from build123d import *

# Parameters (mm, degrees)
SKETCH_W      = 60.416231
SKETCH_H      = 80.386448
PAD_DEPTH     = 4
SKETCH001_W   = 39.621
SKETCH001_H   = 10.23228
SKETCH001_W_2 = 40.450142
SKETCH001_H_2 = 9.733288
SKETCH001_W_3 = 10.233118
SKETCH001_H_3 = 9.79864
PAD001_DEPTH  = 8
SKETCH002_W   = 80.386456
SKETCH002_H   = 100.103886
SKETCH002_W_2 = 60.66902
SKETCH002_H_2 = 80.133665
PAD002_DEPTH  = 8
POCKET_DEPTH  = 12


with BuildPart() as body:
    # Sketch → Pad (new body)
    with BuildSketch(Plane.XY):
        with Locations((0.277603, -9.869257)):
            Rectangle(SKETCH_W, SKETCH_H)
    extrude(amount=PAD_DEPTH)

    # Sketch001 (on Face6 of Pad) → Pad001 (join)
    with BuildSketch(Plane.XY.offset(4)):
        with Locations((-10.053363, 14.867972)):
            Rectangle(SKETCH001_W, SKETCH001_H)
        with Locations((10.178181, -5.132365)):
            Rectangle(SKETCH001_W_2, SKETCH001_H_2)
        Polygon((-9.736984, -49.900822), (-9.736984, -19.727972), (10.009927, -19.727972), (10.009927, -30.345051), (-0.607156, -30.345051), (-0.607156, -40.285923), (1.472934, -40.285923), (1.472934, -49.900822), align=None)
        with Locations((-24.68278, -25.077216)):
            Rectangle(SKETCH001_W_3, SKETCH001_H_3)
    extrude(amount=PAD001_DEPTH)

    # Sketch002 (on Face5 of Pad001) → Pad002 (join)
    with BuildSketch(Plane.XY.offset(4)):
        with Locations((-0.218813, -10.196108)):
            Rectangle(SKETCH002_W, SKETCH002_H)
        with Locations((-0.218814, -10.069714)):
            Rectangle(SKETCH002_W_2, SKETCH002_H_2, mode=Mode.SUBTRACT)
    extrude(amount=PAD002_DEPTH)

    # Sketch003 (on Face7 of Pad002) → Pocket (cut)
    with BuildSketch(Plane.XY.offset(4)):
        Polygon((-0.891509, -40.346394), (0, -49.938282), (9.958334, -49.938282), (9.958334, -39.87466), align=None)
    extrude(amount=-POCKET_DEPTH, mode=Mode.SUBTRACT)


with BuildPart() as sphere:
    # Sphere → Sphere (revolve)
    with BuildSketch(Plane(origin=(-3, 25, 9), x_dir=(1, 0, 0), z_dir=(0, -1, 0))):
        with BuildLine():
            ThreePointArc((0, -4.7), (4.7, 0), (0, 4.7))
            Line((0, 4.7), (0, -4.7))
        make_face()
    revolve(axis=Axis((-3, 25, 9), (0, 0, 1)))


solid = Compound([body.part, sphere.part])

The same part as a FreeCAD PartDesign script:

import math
import FreeCAD as App
import Part
import Sketcher

V = App.Vector

doc = App.newDocument("Part")
body = doc.addObject("PartDesign::Body", "Body")

sketch1 = doc.addObject("Sketcher::SketchObject", "Sketch")
body.addObject(sketch1)
sketch1.AttachmentSupport = (doc.XY_Plane, [""])
sketch1.MapMode = "FlatFace"
sketch1.addGeometry([
    Part.LineSegment(V(-30, 30, 0), V(-30, -50, 0)),
    Part.LineSegment(V(-30, -50, 0), V(30, -50, 0)),
    Part.LineSegment(V(30, -50, 0), V(30, 30, 0)),
    Part.LineSegment(V(30, 30, 0), V(-30, 30, 0)),
], False)
sketch1.addConstraint([
    Sketcher.Constraint("Coincident", 0, 2, 1, 1),
    Sketcher.Constraint("Coincident", 1, 2, 2, 1),
    Sketcher.Constraint("Coincident", 2, 2, 3, 1),
    Sketcher.Constraint("Coincident", 3, 2, 0, 1),
    Sketcher.Constraint("Vertical", 0),
    Sketcher.Constraint("Horizontal", 1),
    Sketcher.Constraint("Vertical", 2),
    Sketcher.Constraint("Horizontal", 3),
    Sketcher.Constraint("DistanceX", 1, 1, 1, 2, 60.416231),
    Sketcher.Constraint("DistanceY", 0, 2, 0, 1, 80.386448),
    Sketcher.Constraint("DistanceY", 0, 2, -1, 1, 50.062481),
    Sketcher.Constraint("DistanceX", -1, 1, 1, 2, 30.485719),
])
pad1 = doc.addObject("PartDesign::Pad", "Pad")
body.addObject(pad1)
pad1.Profile = sketch1
pad1.Length = 4

sketch2 = doc.addObject("Sketcher::SketchObject", "Sketch001")
body.addObject(sketch2)
sketch2.AttachmentSupport = (doc.XY_Plane, [""])
sketch2.MapMode = "FlatFace"
sketch2.AttachmentOffset = App.Placement(V(0, 0, 4), App.Rotation())
sketch2.addGeometry([
    Part.LineSegment(V(-29.9, 20, 0), V(-29.9, 9.8, 0)),
    Part.LineSegment(V(-29.9, 9.8, 0), V(9.8, 9.8, 0)),
    Part.LineSegment(V(9.8, 9.8, 0), V(9.8, 20, 0)),
    Part.LineSegment(V(9.8, 20, 0), V(-29.9, 20, 0)),
    Part.LineSegment(V(-10, -0.3, 0), V(-10, -10, 0)),
    Part.LineSegment(V(-10, -10, 0), V(30.4, -10, 0)),
    Part.LineSegment(V(30.4, -10, 0), V(30.4, -0.3, 0)),
    Part.LineSegment(V(30.4, -0.3, 0), V(-10, -0.3, 0)),
    Part.LineSegment(V(-9.7, -19.7, 0), V(-9.7, -49.9, 0)),
    Part.LineSegment(V(-9.7, -49.9, 0), V(1.5, -49.9, 0)),
    Part.LineSegment(V(1.5, -49.9, 0), V(1.5, -40.3, 0)),
    Part.LineSegment(V(1.5, -40.3, 0), V(-0.6, -40.3, 0)),
    Part.LineSegment(V(-0.6, -40.3, 0), V(-0.6, -30.3, 0)),
    Part.LineSegment(V(-0.6, -30.3, 0), V(10, -30.3, 0)),
    Part.LineSegment(V(10, -30.3, 0), V(10, -19.7, 0)),
    Part.LineSegment(V(10, -19.7, 0), V(-9.7, -19.7, 0)),
    Part.LineSegment(V(-29.8, -20.2, 0), V(-29.8, -30, 0)),
    Part.LineSegment(V(-29.8, -30, 0), V(-19.6, -30, 0)),
    Part.LineSegment(V(-19.6, -30, 0), V(-19.6, -20.2, 0)),
    Part.LineSegment(V(-19.6, -20.2, 0), V(-29.8, -20.2, 0)),
], False)
sketch2.addConstraint([
    Sketcher.Constraint("Coincident", 0, 2, 1, 1),
    Sketcher.Constraint("Coincident", 1, 2, 2, 1),
    Sketcher.Constraint("Coincident", 2, 2, 3, 1),
    Sketcher.Constraint("Coincident", 3, 2, 0, 1),
    Sketcher.Constraint("Coincident", 4, 2, 5, 1),
    Sketcher.Constraint("Coincident", 5, 2, 6, 1),
    Sketcher.Constraint("Coincident", 6, 2, 7, 1),
    Sketcher.Constraint("Coincident", 7, 2, 4, 1),
    Sketcher.Constraint("Coincident", 8, 2, 9, 1),
    Sketcher.Constraint("Coincident", 9, 2, 10, 1),
    Sketcher.Constraint("Coincident", 10, 2, 11, 1),
    Sketcher.Constraint("Coincident", 11, 2, 12, 1),
    Sketcher.Constraint("Coincident", 12, 2, 13, 1),
    Sketcher.Constraint("Coincident", 13, 2, 14, 1),
    Sketcher.Constraint("Coincident", 14, 2, 15, 1),
    Sketcher.Constraint("Coincident", 15, 2, 8, 1),
    Sketcher.Constraint("Coincident", 16, 2, 17, 1),
    Sketcher.Constraint("Coincident", 17, 2, 18, 1),
    Sketcher.Constraint("Coincident", 18, 2, 19, 1),
    Sketcher.Constraint("Coincident", 19, 2, 16, 1),
    Sketcher.Constraint("Vertical", 0),
    Sketcher.Constraint("Horizontal", 1),
    Sketcher.Constraint("Vertical", 2),
    Sketcher.Constraint("Horizontal", 3),
    Sketcher.Constraint("Vertical", 4),
    Sketcher.Constraint("Horizontal", 5),
    Sketcher.Constraint("Vertical", 6),
    Sketcher.Constraint("Horizontal", 7),
    Sketcher.Constraint("Vertical", 8),
    Sketcher.Constraint("Horizontal", 9),
    Sketcher.Constraint("Vertical", 10),
    Sketcher.Constraint("Horizontal", 11),
    Sketcher.Constraint("Vertical", 12),
    Sketcher.Constraint("Horizontal", 13),
    Sketcher.Constraint("Vertical", 14),
    Sketcher.Constraint("Horizontal", 15),
    Sketcher.Constraint("Vertical", 16),
    Sketcher.Constraint("Horizontal", 17),
    Sketcher.Constraint("Vertical", 18),
    Sketcher.Constraint("Horizontal", 19),
    Sketcher.Constraint("DistanceX", 1, 1, 1, 2, 39.621),
    Sketcher.Constraint("DistanceY", 10, 1, 10, 2, 9.614899),
    Sketcher.Constraint("DistanceX", 11, 2, 11, 1, 2.08009),
    Sketcher.Constraint("DistanceX", 15, 2, 15, 1, 19.746911),
    Sketcher.Constraint("DistanceX", 17, 1, 17, 2, 10.233118),
    Sketcher.Constraint("DistanceY", 0, 2, 0, 1, 10.23228),
    Sketcher.Constraint("DistanceY", 8, 2, 8, 1, 30.17285),
    Sketcher.Constraint("DistanceY", 12, 1, 12, 2, 9.940872),
    Sketcher.Constraint("DistanceY", 16, 2, 16, 1, 9.79864),
    Sketcher.Constraint("DistanceY", 8, 2, 7, 2, 49.635101),
    Sketcher.Constraint("DistanceX", 5, 1, 5, 2, 40.450142),
    Sketcher.Constraint("DistanceX", 9, 1, 9, 2, 11.209918),
    Sketcher.Constraint("DistanceY", 4, 2, 4, 1, 9.733288),
    Sketcher.Constraint("DistanceY", -1, 1, 2, 2, 19.984112),
    Sketcher.Constraint("DistanceX", 4, 2, -1, 1, 10.04689),
    Sketcher.Constraint("DistanceY", 4, 2, -1, 1, 9.999009),
    Sketcher.Constraint("DistanceX", 16, 2, -1, 1, 29.799339),
    Sketcher.Constraint("DistanceX", 8, 2, 1, 2, 19.494121),
    Sketcher.Constraint("DistanceX", 9, 2, 5, 2, 28.930318),
    Sketcher.Constraint("DistanceY", 16, 2, -1, 1, 29.976536),
])
pad2 = doc.addObject("PartDesign::Pad", "Pad001")
body.addObject(pad2)
pad2.Profile = sketch2
pad2.Length = 8

sketch3 = doc.addObject("Sketcher::SketchObject", "Sketch002")
body.addObject(sketch3)
sketch3.AttachmentSupport = (doc.XY_Plane, [""])
sketch3.MapMode = "FlatFace"
sketch3.AttachmentOffset = App.Placement(V(0, 0, 4), App.Rotation())
sketch3.addGeometry([
    Part.LineSegment(V(-40, 40, 0), V(-40, -60, 0)),
    Part.LineSegment(V(-40, -60, 0), V(40, -60, 0)),
    Part.LineSegment(V(40, -60, 0), V(40, 40, 0)),
    Part.LineSegment(V(40, 40, 0), V(-40, 40, 0)),
    Part.LineSegment(V(30, -50, 0), V(-31, -50, 0)),
    Part.LineSegment(V(-31, -50, 0), V(-31, 30, 0)),
    Part.LineSegment(V(-31, 30, 0), V(30, 30, 0)),
    Part.LineSegment(V(30, 30, 0), V(30, -50, 0)),
], False)
sketch3.addConstraint([
    Sketcher.Constraint("Coincident", 0, 2, 1, 1),
    Sketcher.Constraint("Coincident", 1, 2, 2, 1),
    Sketcher.Constraint("Coincident", 2, 2, 3, 1),
    Sketcher.Constraint("Coincident", 3, 2, 0, 1),
    Sketcher.Constraint("Coincident", 4, 2, 5, 1),
    Sketcher.Constraint("Coincident", 5, 2, 6, 1),
    Sketcher.Constraint("Coincident", 6, 2, 7, 1),
    Sketcher.Constraint("Coincident", 7, 2, 4, 1),
    Sketcher.Constraint("Vertical", 0),
    Sketcher.Constraint("Horizontal", 1),
    Sketcher.Constraint("Vertical", 2),
    Sketcher.Constraint("Horizontal", 3),
    Sketcher.Constraint("Horizontal", 4),
    Sketcher.Constraint("Vertical", 5),
    Sketcher.Constraint("Horizontal", 6),
    Sketcher.Constraint("Vertical", 7),
    Sketcher.Constraint("DistanceX", 4, 2, 4, 1, 60.66902),
    Sketcher.Constraint("DistanceX", 1, 1, 1, 2, 80.386456),
    Sketcher.Constraint("DistanceY", 0, 2, 0, 1, 100.103886),
    Sketcher.Constraint("DistanceY", 5, 1, 5, 2, 80.133665),
    Sketcher.Constraint("DistanceX", 0, 2, -1, 1, 40.412041),
    Sketcher.Constraint("DistanceY", 0, 2, -1, 1, 60.248051),
    Sketcher.Constraint("DistanceY", -1, 1, 5, 2, 29.997118),
    Sketcher.Constraint("DistanceX", 4, 2, 1, 2, 70.527739),
])
pad3 = doc.addObject("PartDesign::Pad", "Pad002")
body.addObject(pad3)
pad3.Profile = sketch3
pad3.Length = 8

sketch4 = doc.addObject("Sketcher::SketchObject", "Sketch003")
body.addObject(sketch4)
sketch4.AttachmentSupport = (doc.XY_Plane, [""])
sketch4.MapMode = "FlatFace"
sketch4.AttachmentOffset = App.Placement(V(0, 0, 4), App.Rotation())
sketch4.addGeometry([
    Part.LineSegment(V(-1, -40, 0), V(0, -50, 0)),
    Part.LineSegment(V(0, -50, 0), V(10, -50, 0)),
    Part.LineSegment(V(10, -50, 0), V(10, -40, 0)),
    Part.LineSegment(V(10, -40, 0), V(-1, -40, 0)),
], False)
sketch4.addConstraint([
    Sketcher.Constraint("Coincident", 0, 2, 1, 1),
    Sketcher.Constraint("Coincident", 1, 2, 2, 1),
    Sketcher.Constraint("Coincident", 2, 2, 3, 1),
    Sketcher.Constraint("Coincident", 3, 2, 0, 1),
    Sketcher.Constraint("Horizontal", 1),
    Sketcher.Constraint("Vertical", 2),
    Sketcher.Constraint("PointOnObject", 0, 2, -2),
    Sketcher.Constraint("Distance", 0, 9.633229),
    Sketcher.Constraint("DistanceX", 1, 1, 1, 2, 9.958334),
    Sketcher.Constraint("DistanceY", 2, 1, 2, 2, 10.063622),
    Sketcher.Constraint("DistanceY", 2, 2, -1, 1, 39.87466),
    Sketcher.Constraint("DistanceX", 3, 2, -1, 1, 0.891509),
])
pocket1 = doc.addObject("PartDesign::Pocket", "Pocket")
body.addObject(pocket1)
pocket1.Profile = sketch4
pocket1.Length = 12
body2 = doc.addObject("PartDesign::Body", "Body001")

sketch5 = doc.addObject("Sketcher::SketchObject", "Sketch004")
body2.addObject(sketch5)
sketch5.AttachmentSupport = (doc.getObject("XZ_Plane001"), [""])
sketch5.MapMode = "FlatFace"
sketch5.AttachmentOffset = App.Placement(V(0, 0, -25), App.Rotation())
sketch5.addGeometry([
    Part.ArcOfCircle(Part.Circle(V(-3, 9, 0), V(0, 0, 1), 4.7), math.radians(-90), math.radians(90)),
    Part.LineSegment(V(-3, 13.7, 0), V(-3, 4.3, 0)),
], False)
sketch5.addGeometry(Part.LineSegment(V(-3, 4.3, 0), V(-3, 13.7, 0)), True)
sketch5.addConstraint([
    Sketcher.Constraint("Coincident", 0, 1, 1, 2),
    Sketcher.Constraint("Coincident", 1, 1, 0, 2),
    Sketcher.Constraint("Vertical", 1),
    Sketcher.Constraint("Vertical", 2),
    Sketcher.Constraint("Coincident", 2, 1, 0, 1),
    Sketcher.Constraint("Equal", 1, 2),
    Sketcher.Constraint("Radius", 0, 4.7),
    Sketcher.Constraint("DistanceX", 0, 3, -1, 1, 3.0),
    Sketcher.Constraint("DistanceY", -1, 1, 0, 3, 9.0),
    Sketcher.Constraint("DistanceX", 0, 1, -1, 1, 3.0),
])
revolution = doc.addObject("PartDesign::Revolution", "Revolution")
body2.addObject(revolution)
revolution.Profile = sketch5
revolution.ReferenceAxis = (sketch5, ["Axis0"])
revolution.Angle = 360

doc.recompute()
